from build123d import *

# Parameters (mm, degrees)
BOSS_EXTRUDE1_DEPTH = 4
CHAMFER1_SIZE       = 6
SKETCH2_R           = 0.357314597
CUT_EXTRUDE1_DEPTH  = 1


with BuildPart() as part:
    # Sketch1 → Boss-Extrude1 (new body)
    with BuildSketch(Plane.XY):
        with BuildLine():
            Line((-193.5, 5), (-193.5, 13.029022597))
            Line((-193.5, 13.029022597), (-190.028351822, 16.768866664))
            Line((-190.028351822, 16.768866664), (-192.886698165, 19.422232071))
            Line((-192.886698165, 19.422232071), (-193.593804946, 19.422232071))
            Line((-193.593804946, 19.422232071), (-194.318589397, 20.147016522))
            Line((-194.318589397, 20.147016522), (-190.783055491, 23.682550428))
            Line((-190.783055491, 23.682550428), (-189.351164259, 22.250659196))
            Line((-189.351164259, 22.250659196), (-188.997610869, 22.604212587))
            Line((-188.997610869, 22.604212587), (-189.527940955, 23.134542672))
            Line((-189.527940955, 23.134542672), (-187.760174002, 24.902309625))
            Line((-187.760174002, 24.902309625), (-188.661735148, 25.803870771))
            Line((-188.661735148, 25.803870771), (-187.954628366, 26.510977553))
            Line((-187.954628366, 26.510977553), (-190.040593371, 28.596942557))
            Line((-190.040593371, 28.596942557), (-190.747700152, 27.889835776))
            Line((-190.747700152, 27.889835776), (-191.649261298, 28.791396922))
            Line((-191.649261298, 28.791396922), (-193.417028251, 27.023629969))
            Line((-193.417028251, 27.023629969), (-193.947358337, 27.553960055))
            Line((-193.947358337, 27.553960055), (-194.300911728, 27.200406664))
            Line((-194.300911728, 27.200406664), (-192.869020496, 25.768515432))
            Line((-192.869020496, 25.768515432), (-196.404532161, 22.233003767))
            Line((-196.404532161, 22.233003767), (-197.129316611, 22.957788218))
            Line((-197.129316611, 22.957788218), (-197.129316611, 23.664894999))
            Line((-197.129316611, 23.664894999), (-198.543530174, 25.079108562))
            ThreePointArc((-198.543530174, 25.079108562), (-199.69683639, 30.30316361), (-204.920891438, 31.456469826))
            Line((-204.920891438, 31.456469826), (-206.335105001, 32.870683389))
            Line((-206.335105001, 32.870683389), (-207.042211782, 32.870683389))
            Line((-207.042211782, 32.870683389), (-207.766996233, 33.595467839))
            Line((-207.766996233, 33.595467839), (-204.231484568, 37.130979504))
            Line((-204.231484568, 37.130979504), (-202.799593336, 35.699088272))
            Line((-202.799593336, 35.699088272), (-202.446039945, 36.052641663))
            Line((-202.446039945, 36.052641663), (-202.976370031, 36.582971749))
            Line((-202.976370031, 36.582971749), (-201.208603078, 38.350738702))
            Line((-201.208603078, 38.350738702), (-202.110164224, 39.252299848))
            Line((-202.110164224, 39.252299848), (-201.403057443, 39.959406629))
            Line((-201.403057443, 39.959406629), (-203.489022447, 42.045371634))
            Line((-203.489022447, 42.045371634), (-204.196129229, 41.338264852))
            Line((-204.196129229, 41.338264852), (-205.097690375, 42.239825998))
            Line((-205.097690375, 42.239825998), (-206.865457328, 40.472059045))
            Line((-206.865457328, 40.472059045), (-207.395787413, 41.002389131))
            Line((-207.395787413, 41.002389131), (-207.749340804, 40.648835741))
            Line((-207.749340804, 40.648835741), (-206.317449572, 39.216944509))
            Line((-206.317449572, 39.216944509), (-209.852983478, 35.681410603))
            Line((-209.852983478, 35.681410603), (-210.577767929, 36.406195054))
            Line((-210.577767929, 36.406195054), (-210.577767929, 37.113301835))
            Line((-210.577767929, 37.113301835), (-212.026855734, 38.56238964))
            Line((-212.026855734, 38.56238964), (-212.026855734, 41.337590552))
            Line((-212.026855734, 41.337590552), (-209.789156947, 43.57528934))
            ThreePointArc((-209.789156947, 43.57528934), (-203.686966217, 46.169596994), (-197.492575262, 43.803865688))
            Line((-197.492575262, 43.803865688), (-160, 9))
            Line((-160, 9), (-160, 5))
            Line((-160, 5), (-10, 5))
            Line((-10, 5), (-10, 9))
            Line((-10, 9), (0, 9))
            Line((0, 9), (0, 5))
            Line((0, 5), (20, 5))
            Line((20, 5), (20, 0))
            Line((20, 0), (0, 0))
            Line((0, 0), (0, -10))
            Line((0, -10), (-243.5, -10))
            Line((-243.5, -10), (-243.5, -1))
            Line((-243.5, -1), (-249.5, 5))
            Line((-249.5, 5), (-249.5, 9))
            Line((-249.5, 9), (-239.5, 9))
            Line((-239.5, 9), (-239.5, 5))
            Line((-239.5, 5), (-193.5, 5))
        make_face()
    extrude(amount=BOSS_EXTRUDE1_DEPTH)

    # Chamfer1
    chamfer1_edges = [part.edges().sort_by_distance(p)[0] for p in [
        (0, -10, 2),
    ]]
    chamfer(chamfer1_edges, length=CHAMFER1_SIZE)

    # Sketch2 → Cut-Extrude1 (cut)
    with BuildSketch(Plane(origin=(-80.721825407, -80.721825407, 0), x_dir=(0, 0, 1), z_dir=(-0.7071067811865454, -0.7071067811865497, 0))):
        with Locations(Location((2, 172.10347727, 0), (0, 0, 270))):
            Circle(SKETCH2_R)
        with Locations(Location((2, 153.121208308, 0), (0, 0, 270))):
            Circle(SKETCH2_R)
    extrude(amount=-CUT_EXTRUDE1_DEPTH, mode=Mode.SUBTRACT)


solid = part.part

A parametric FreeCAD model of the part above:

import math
import FreeCAD as App
import Part
import Sketcher

V = App.Vector
Q = App.Units.Quantity


def edges_at(feature, points):
    """Names of the edges that pass closest to the given points."""
    edges = feature.Shape.Edges
    near = lambda p: min(range(len(edges)), key=lambda i: edges[i].distToShape(Part.Vertex(*p))[0])
    return sorted({f"Edge{near(p) + 1}" for p in points})

doc = App.newDocument("Part")
params = doc.addObject("Spreadsheet::Sheet", "Params")
for row, (alias, value) in enumerate([
    ("sketch1_width", "46 mm"),
    ("sketch1_width2", "10 mm"),
    ("sketch1_width3", "20 mm"),
    ("sketch1_width4", "150 mm"),
    ("sketch1_height", "4 mm"),
    ("pad1_length", "4 mm"),
    ("chamfer_size", "6 mm"),
    ("pocket1_length", "1 mm"),
], start=1):
    params.set(f"A{row}", alias)
    params.set(f"B{row}", "=" + value)
    params.setAlias(f"B{row}", alias)

body = doc.addObject("PartDesign::Body", "Body")

# Sketch on XY plane
sketch1 = doc.addObject("Sketcher::SketchObject", "Sketch")
body.addObject(sketch1)
sketch1.AttachmentSupport = (doc.XY_Plane, [""])
sketch1.MapMode = "FlatFace"
sketch1.addGeometry([
    Part.LineSegment(V(-193.5, 13.03, 0), V(-193.5, 5, 0)),  # 0
    Part.LineSegment(V(-193.5, 5, 0), V(-239.5, 5, 0)),  # 1
    Part.LineSegment(V(-239.5, 5, 0), V(-239.5, 9, 0)),  # 2
    Part.LineSegment(V(-239.5, 9, 0), V(-249.5, 9, 0)),  # 3
    Part.LineSegment(V(-249.5, 9, 0), V(-249.5, 5, 0)),  # 4
    Part.LineSegment(V(-249.5, 5, 0), V(-243.5, -1, 0)),  # 5
    Part.LineSegment(V(-243.5, -1, 0), V(-243.5, -10, 0)),  # 6
    Part.LineSegment(V(-243.5, -10, 0), V(0, -10, 0)),  # 7
    Part.LineSegment(V(0, -10, 0), V(0, 0, 0)),  # 8
    Part.LineSegment(V(0, 0, 0), V(20, 0, 0)),  # 9
    Part.LineSegment(V(20, 0, 0), V(20, 5, 0)),  # 10
    Part.LineSegment(V(20, 5, 0), V(0, 5, 0)),  # 11
    Part.LineSegment(V(0, 5, 0), V(0, 9, 0)),  # 12
    Part.LineSegment(V(0, 9, 0), V(-10, 9, 0)),  # 13
    Part.LineSegment(V(-10, 9, 0), V(-10, 5, 0)),  # 14
    Part.LineSegment(V(-10, 5, 0), V(-160, 5, 0)),  # 15
    Part.LineSegment(V(-160, 5, 0), V(-160, 9, 0)),  # 16
    Part.LineSegment(V(-160, 9, 0), V(-197.49, 43.8, 0)),  # 17
    Part.ArcOfCircle(Part.Circle(V(-203.52, 37.31, 0), V(0, 0, 1), 8.86), math.radians(47), math.radians(135)),  # 18
    Part.LineSegment(V(-209.79, 43.58, 0), V(-212.03, 41.34, 0)),  # 19
    Part.LineSegment(V(-212.03, 41.34, 0), V(-212.03, 38.56, 0)),  # 20
    Part.LineSegment(V(-212.03, 38.56, 0), V(-210.58, 37.11, 0)),  # 21
    Part.LineSegment(V(-210.58, 37.11, 0), V(-210.58, 36.41, 0)),  # 22
    Part.LineSegment(V(-210.58, 36.41, 0), V(-209.85, 35.68, 0)),  # 23
    Part.LineSegment(V(-209.85, 35.68, 0), V(-206.32, 39.22, 0)),  # 24
    Part.LineSegment(V(-206.32, 39.22, 0), V(-207.75, 40.65, 0)),  # 25
    Part.LineSegment(V(-207.75, 40.65, 0), V(-207.4, 41, 0)),  # 26
    Part.LineSegment(V(-207.4, 41, 0), V(-206.87, 40.47, 0)),  # 27
    Part.LineSegment(V(-206.87, 40.47, 0), V(-205.1, 42.24, 0)),  # 28
    Part.LineSegment(V(-205.1, 42.24, 0), V(-204.2, 41.34, 0)),  # 29
    Part.LineSegment(V(-204.2, 41.34, 0), V(-203.49, 42.05, 0)),  # 30
    Part.LineSegment(V(-203.49, 42.05, 0), V(-201.4, 39.96, 0)),  # 31
    Part.LineSegment(V(-201.4, 39.96, 0), V(-202.11, 39.25, 0)),  # 32
    Part.LineSegment(V(-202.11, 39.25, 0), V(-201.21, 38.35, 0)),  # 33
    Part.LineSegment(V(-201.21, 38.35, 0), V(-202.98, 36.58, 0)),  # 34
    Part.LineSegment(V(-202.98, 36.58, 0), V(-202.45, 36.05, 0)),  # 35
    Part.LineSegment(V(-202.45, 36.05, 0), V(-202.8, 35.7, 0)),  # 36
    Part.LineSegment(V(-202.8, 35.7, 0), V(-204.23, 37.13, 0)),  # 37
    Part.LineSegment(V(-204.23, 37.13, 0), V(-207.77, 33.6, 0)),  # 38
    Part.LineSegment(V(-207.77, 33.6, 0), V(-207.04, 32.87, 0)),  # 39
    Part.LineSegment(V(-207.04, 32.87, 0), V(-206.34, 32.87, 0)),  # 40
    Part.LineSegment(V(-206.34, 32.87, 0), V(-204.92, 31.46, 0)),  # 41
    Part.ArcOfCircle(Part.Circle(V(-203.21, 26.79, 0), V(0, 0, 1), 4.97), math.radians(-20), math.radians(110)),  # 42
    Part.LineSegment(V(-198.54, 25.08, 0), V(-197.13, 23.66, 0)),  # 43
    Part.LineSegment(V(-197.13, 23.66, 0), V(-197.13, 22.96, 0)),  # 44
    Part.LineSegment(V(-197.13, 22.96, 0), V(-196.4, 22.23, 0)),  # 45
    Part.LineSegment(V(-196.4, 22.23, 0), V(-192.87, 25.77, 0)),  # 46
    Part.LineSegment(V(-192.87, 25.77, 0), V(-194.3, 27.2, 0)),  # 47
    Part.LineSegment(V(-194.3, 27.2, 0), V(-193.95, 27.55, 0)),  # 48
    Part.LineSegment(V(-193.95, 27.55, 0), V(-193.42, 27.02, 0)),  # 49
    Part.LineSegment(V(-193.42, 27.02, 0), V(-191.65, 28.79, 0)),  # 50
    Part.LineSegment(V(-191.65, 28.79, 0), V(-190.75, 27.89, 0)),  # 51
    Part.LineSegment(V(-190.75, 27.89, 0), V(-190.04, 28.6, 0)),  # 52
    Part.LineSegment(V(-190.04, 28.6, 0), V(-187.95, 26.51, 0)),  # 53
    Part.LineSegment(V(-187.95, 26.51, 0), V(-188.66, 25.8, 0)),  # 54
    Part.LineSegment(V(-188.66, 25.8, 0), V(-187.76, 24.9, 0)),  # 55
    Part.LineSegment(V(-187.76, 24.9, 0), V(-189.53, 23.13, 0)),  # 56
    Part.LineSegment(V(-189.53, 23.13, 0), V(-189, 22.6, 0)),  # 57
    Part.LineSegment(V(-189, 22.6, 0), V(-189.35, 22.25, 0)),  # 58
    Part.LineSegment(V(-189.35, 22.25, 0), V(-190.78, 23.68, 0)),  # 59
    Part.LineSegment(V(-190.78, 23.68, 0), V(-194.32, 20.15, 0)),  # 60
    Part.LineSegment(V(-194.32, 20.15, 0), V(-193.59, 19.42, 0)),  # 61
    Part.LineSegment(V(-193.59, 19.42, 0), V(-192.89, 19.42, 0)),  # 62
    Part.LineSegment(V(-192.89, 19.42, 0), V(-190.03, 16.77, 0)),  # 63
    Part.LineSegment(V(-190.03, 16.77, 0), V(-193.5, 13.03, 0)),  # 64
], False)
sketch1.addConstraint([
    Sketcher.Constraint("Coincident", 0, 2, 1, 1),
    Sketcher.Constraint("Coincident", 1, 2, 2, 1),
    Sketcher.Constraint("Coincident", 2, 2, 3, 1),
    Sketcher.Constraint("Coincident", 3, 2, 4, 1),
    Sketcher.Constraint("Coincident", 4, 2, 5, 1),
    Sketcher.Constraint("Coincident", 5, 2, 6, 1),
    Sketcher.Constraint("Coincident", 6, 2, 7, 1),
    Sketcher.Constraint("Coincident", 7, 2, 8, 1),
    Sketcher.Constraint("Coincident", 8, 2, 9, 1),
    Sketcher.Constraint("Coincident", 9, 2, 10, 1),
    Sketcher.Constraint("Coincident", 10, 2, 11, 1),
    Sketcher.Constraint("Coincident", 11, 2, 12, 1),
    Sketcher.Constraint("Coincident", 12, 2, 13, 1),
    Sketcher.Constraint("Coincident", 13, 2, 14, 1),
    Sketcher.Constraint("Coincident", 14, 2, 15, 1),
    Sketcher.Constraint("Coincident", 15, 2, 16, 1),
    Sketcher.Constraint("Coincident", 16, 2, 17, 1),
    Sketcher.Constraint("Tangent", 17, 2, 18, 1),
    Sketcher.Constraint("Tangent", 18, 2, 19, 1),
    Sketcher.Constraint("Coincident", 19, 2, 20, 1),
    Sketcher.Constraint("Coincident", 20, 2, 21, 1),
    Sketcher.Constraint("Coincident", 21, 2, 22, 1),
    Sketcher.Constraint("Coincident", 22, 2, 23, 1),
    Sketcher.Constraint("Coincident", 23, 2, 24, 1),
    Sketcher.Constraint("Coincident", 24, 2, 25, 1),
    Sketcher.Constraint("Coincident", 25, 2, 26, 1),
    Sketcher.Constraint("Coincident", 26, 2, 27, 1),
    Sketcher.Constraint("Coincident", 27, 2, 28, 1),
    Sketcher.Constraint("Coincident", 28, 2, 29, 1),
    Sketcher.Constraint("Coincident", 29, 2, 30, 1),
    Sketcher.Constraint("Coincident", 30, 2, 31, 1),
    Sketcher.Constraint("Coincident", 31, 2, 32, 1),
    Sketcher.Constraint("Coincident", 32, 2, 33, 1),
    Sketcher.Constraint("Coincident", 33, 2, 34, 1),
    Sketcher.Constraint("Coincident", 34, 2, 35, 1),
    Sketcher.Constraint("Coincident", 35, 2, 36, 1),
    Sketcher.Constraint("Coincident", 36, 2, 37, 1),
    Sketcher.Constraint("Coincident", 37, 2, 38, 1),
    Sketcher.Constraint("Coincident", 38, 2, 39, 1),
    Sketcher.Constraint("Coincident", 39, 2, 40, 1),
    Sketcher.Constraint("Coincident", 40, 2, 41, 1),
    Sketcher.Constraint("Coincident", 41, 2, 42, 2),
    Sketcher.Constraint("Coincident", 42, 1, 43, 1),
    Sketcher.Constraint("Coincident", 43, 2, 44, 1),
    Sketcher.Constraint("Coincident", 44, 2, 45, 1),
    Sketcher.Constraint("Coincident", 45, 2, 46, 1),
    Sketcher.Constraint("Coincident", 46, 2, 47, 1),
    Sketcher.Constraint("Coincident", 47, 2, 48, 1),
    Sketcher.Constraint("Coincident", 48, 2, 49, 1),
    Sketcher.Constraint("Coincident", 49, 2, 50, 1),
    Sketcher.Constraint("Coincident", 50, 2, 51, 1),
    Sketcher.Constraint("Coincident", 51, 2, 52, 1),
    Sketcher.Constraint("Coincident", 52, 2, 53, 1),
    Sketcher.Constraint("Coincident", 53, 2, 54, 1),
    Sketcher.Constraint("Coincident", 54, 2, 55, 1),
    Sketcher.Constraint("Coincident", 55, 2, 56, 1),
    Sketcher.Constraint("Coincident", 56, 2, 57, 1),
    Sketcher.Constraint("Coincident", 57, 2, 58, 1),
    Sketcher.Constraint("Coincident", 58, 2, 59, 1),
    Sketcher.Constraint("Coincident", 59, 2, 60, 1),
    Sketcher.Constraint("Coincident", 60, 2, 61, 1),
    Sketcher.Constraint("Coincident", 61, 2, 62, 1),
    Sketcher.Constraint("Coincident", 62, 2, 63, 1),
    Sketcher.Constraint("Coincident", 63, 2, 64, 1),
    Sketcher.Constraint("Coincident", 64, 2, 0, 1),
    Sketcher.Constraint("Vertical", 0),
    Sketcher.Constraint("Horizontal", 1),
    Sketcher.Constraint("Vertical", 2),
    Sketcher.Constraint("Horizontal", 3),
    Sketcher.Constraint("Vertical", 4),
    Sketcher.Constraint("Vertical", 6),
    Sketcher.Constraint("Horizontal", 7),
    Sketcher.Constraint("Vertical", 8),
    Sketcher.Constraint("Horizontal", 9),
    Sketcher.Constraint("Vertical", 10),
    Sketcher.Constraint("Horizontal", 11),
    Sketcher.Constraint("Vertical", 12),
    Sketcher.Constraint("Horizontal", 13),
    Sketcher.Constraint("Vertical", 14),
    Sketcher.Constraint("Horizontal", 15),
    Sketcher.Constraint("Vertical", 16),
    Sketcher.Constraint("Vertical", 20),
    Sketcher.Constraint("Vertical", 22),
    Sketcher.Constraint("Horizontal", 40),
    Sketcher.Constraint("Vertical", 44),
    Sketcher.Constraint("Horizontal", 62),
    Sketcher.Constraint("Coincident", 8, 2, -1, 1),
    Sketcher.Constraint("PointOnObject", 11, 2, -2),
    Sketcher.Constraint("Perpendicular", 5, 19),
    Sketcher.Constraint("Perpendicular", 19, 21),
    Sketcher.Constraint("Parallel", 21, 23),
    Sketcher.Constraint("Perpendicular", 23, 24),
    Sketcher.Constraint("Perpendicular", 24, 25),
    Sketcher.Constraint("Perpendicular", 25, 26),
    Sketcher.Constraint("Perpendicular", 26, 27),
    Sketcher.Constraint("Perpendicular", 27, 28),
    Sketcher.Constraint("Perpendicular", 28, 29),
    Sketcher.Constraint("Perpendicular", 29, 30),
    Sketcher.Constraint("Perpendicular", 30, 31),
    Sketcher.Constraint("Perpendicular", 31, 32),
    Sketcher.Constraint("Perpendicular", 32, 33),
    Sketcher.Constraint("Perpendicular", 33, 34),
    Sketcher.Constraint("Perpendicular", 34, 35),
    Sketcher.Constraint("Perpendicular", 35, 36),
    Sketcher.Constraint("Perpendicular", 36, 37),
    Sketcher.Constraint("Perpendicular", 37, 38),
    Sketcher.Constraint("Perpendicular", 38, 39),
    Sketcher.Constraint("Parallel", 39, 41),
    Sketcher.Constraint("Parallel", 41, 43),
    Sketcher.Constraint("Parallel", 43, 45),
    Sketcher.Constraint("Perpendicular", 45, 46),
    Sketcher.Constraint("Perpendicular", 46, 47),
    Sketcher.Constraint("Perpendicular", 47, 48),
    Sketcher.Constraint("Perpendicular", 48, 49),
    Sketcher.Constraint("Perpendicular", 49, 50),
    Sketcher.Constraint("Perpendicular", 50, 51),
    Sketcher.Constraint("Perpendicular", 51, 52),
    Sketcher.Constraint("Perpendicular", 52, 53),
    Sketcher.Constraint("Perpendicular", 53, 54),
    Sketcher.Constraint("Perpendicular", 54, 55),
    Sketcher.Constraint("Perpendicular", 55, 56),
    Sketcher.Constraint("Perpendicular", 56, 57),
    Sketcher.Constraint("Perpendicular", 57, 58),
    Sketcher.Constraint("Perpendicular", 58, 59),
    Sketcher.Constraint("Perpendicular", 59, 60),
    Sketcher.Constraint("Perpendicular", 60, 61),
    Sketcher.Constraint("Parallel", 17, 63),
    Sketcher.Constraint("Perpendicular", 63, 64),
    Sketcher.Constraint("Horizontal", 1, 2, 4, 2),
    Sketcher.Constraint("Horizontal", 4, 2, 10, 2),
    Sketcher.Constraint("Horizontal", 3, 2, 12, 2),
    Sketcher.Constraint("Horizontal", 11, 2, 14, 2),
    Sketcher.Constraint("Horizontal", 13, 2, 16, 2),
    Sketcher.Constraint("Equal", 3, 13),
    Sketcher.Constraint("Equal", 40, 62),
    Sketcher.Constraint("Equal", 13, 8),
    Sketcher.Constraint("Equal", 62, 22),
    Sketcher.Constraint("Equal", 22, 44),
    Sketcher.Constraint("Equal", 30, 32),
    Sketcher.Constraint("Equal", 29, 33),
    Sketcher.Constraint("Equal", 28, 34),
    Sketcher.Constraint("Equal", 27, 35),
    Sketcher.Constraint("Equal", 26, 36),
    Sketcher.Constraint("Equal", 25, 37),
    Sketcher.Constraint("Equal", 23, 39),
    Sketcher.Constraint("Equal", 41, 43),
    Sketcher.Constraint("Equal", 39, 45),
    Sketcher.Constraint("Equal", 38, 46),
    Sketcher.Constraint("Equal", 37, 47),
    Sketcher.Constraint("Equal", 36, 48),
    Sketcher.Constraint("Equal", 35, 49),
    Sketcher.Constraint("Equal", 34, 50),
    Sketcher.Constraint("Equal", 33, 51),
    Sketcher.Constraint("Equal", 32, 52),
    Sketcher.Constraint("Equal", 31, 53),
    Sketcher.Constraint("Equal", 52, 54),
    Sketcher.Constraint("Equal", 51, 55),
    Sketcher.Constraint("Equal", 50, 56),
    Sketcher.Constraint("Equal", 49, 57),
    Sketcher.Constraint("Equal", 48, 58),
    Sketcher.Constraint("Equal", 47, 59),
    Sketcher.Constraint("Equal", 24, 60),
    Sketcher.Constraint("Equal", 45, 61),
    Sketcher.Constraint("DistanceX", 1, 2, 1, 1, 46.0),
    Sketcher.Constraint("DistanceX", 3, 2, 3, 1, 10.0),
    Sketcher.Constraint("DistanceX", 9, 1, 9, 2, 20.0),
    Sketcher.Constraint("DistanceX", 15, 2, 15, 1, 150.0),
    Sketcher.Constraint("DistanceY", 2, 1, 2, 2, 4.0),
    Sketcher.Constraint("DistanceY", 6, 2, 6, 1, 9.0),
    Sketcher.Constraint("DistanceY", 10, 1, 10, 2, 5.0),
    Sketcher.Constraint("Angle", 5, Q("-45 deg")),
    Sketcher.Constraint("Distance", 24, 5.0),
    Sketcher.Constraint("Distance", 30, 1.0),
    Sketcher.Constraint("Distance", 41, 2.0),
    Sketcher.Constraint("DistanceX", 7, 1, 7, 2, 243.5),
    Sketcher.Constraint("Distance", 26, 0.5),
    Sketcher.Constraint("Distance", 28, 2.5),
    Sketcher.Constraint("Distance", 27, 0.75),
    Sketcher.Constraint("Distance", 31, 2.95),
    Sketcher.Constraint("Radius", 42, 4.971569),
    Sketcher.Constraint("Distance", 23, 1.025),
    Sketcher.Constraint("Distance", 25, 2.025),
    Sketcher.Constraint("Distance", 29, 1.275),
    Sketcher.Constraint("DistanceY", 20, 2, 20, 1, 2.775201),
    Sketcher.Constraint("Radius", 18, 8.862747),
    Sketcher.Constraint("DistanceY", -1, 1, 21, 2, 37.113302),
    Sketcher.Constraint("DistanceY", -1, 1, 32, 2, 39.2523),
    Sketcher.Constraint("DistanceX", 51, 2, -1, 1, 190.7477),
    Sketcher.Constraint("Distance", 21, 2.04932),
    Sketcher.Constraint("Distance", 38, 4.999969),
    Sketcher.Constraint("Distance", 64, 5.10282),
    Sketcher.Constraint("DistanceY", 0, 2, 0, 1, 8.029023),
    Sketcher.Constraint("DistanceX", 18, 3, -1, 1, 203.522249),
    Sketcher.Constraint("DistanceY", -1, 1, 18, 3, 37.308381),
])
sketch1.setExpression("Constraints[163]", "Params.sketch1_width")
sketch1.setExpression("Constraints[164]", "Params.sketch1_width2")
sketch1.setExpression("Constraints[165]", "Params.sketch1_width3")
sketch1.setExpression("Constraints[166]", "Params.sketch1_width4")
sketch1.setExpression("Constraints[167]", "Params.sketch1_height")
pad1 = doc.addObject("PartDesign::Pad", "Pad")
body.addObject(pad1)
pad1.Profile = sketch1
pad1.setExpression("Length", "Params.pad1_length")
doc.recompute()

chamfer = doc.addObject("PartDesign::Chamfer", "Chamfer")
body.addObject(chamfer)
chamfer.Base = (pad1, edges_at(pad1, [(0, -10, 2)]))
chamfer.setExpression("Size", "Params.chamfer_size")

# Sketch on an angled plane
sketch2 = doc.addObject("Sketcher::SketchObject", "Sketch001")
body.addObject(sketch2)
sketch2.Placement = App.Placement(V(-80.721825, -80.721825, 0), App.Rotation(V(0, 0, 1), V(-0.707106781, 0.707106781, 0), V(-0.707106781, -0.707106781, 0), "ZXY"))
sketch2.addGeometry([
    Part.Circle(V(2, 172.1, 0), V(0, 0, 1), 0.36),
    Part.Circle(V(2, 153.12, 0), V(0, 0, 1), 0.36),
], False)
sketch2.addConstraint([
    Sketcher.Constraint("Equal", 0, 1),
    Sketcher.Constraint("Vertical", 0, 3, 1, 3),
    Sketcher.Constraint("DistanceX", -1, 1, 0, 3, 2.0),
    Sketcher.Constraint("Diameter", 0, 0.714629),
    Sketcher.Constraint("DistanceY", -1, 1, 1, 3, 153.121208),
    Sketcher.Constraint("DistanceY", 1, 3, 0, 3, 18.982269),
])
pocket1 = doc.addObject("PartDesign::Pocket", "Pocket")
body.addObject(pocket1)
pocket1.Profile = sketch2
pocket1.setExpression("Length", "Params.pocket1_length")

doc.recompute()
